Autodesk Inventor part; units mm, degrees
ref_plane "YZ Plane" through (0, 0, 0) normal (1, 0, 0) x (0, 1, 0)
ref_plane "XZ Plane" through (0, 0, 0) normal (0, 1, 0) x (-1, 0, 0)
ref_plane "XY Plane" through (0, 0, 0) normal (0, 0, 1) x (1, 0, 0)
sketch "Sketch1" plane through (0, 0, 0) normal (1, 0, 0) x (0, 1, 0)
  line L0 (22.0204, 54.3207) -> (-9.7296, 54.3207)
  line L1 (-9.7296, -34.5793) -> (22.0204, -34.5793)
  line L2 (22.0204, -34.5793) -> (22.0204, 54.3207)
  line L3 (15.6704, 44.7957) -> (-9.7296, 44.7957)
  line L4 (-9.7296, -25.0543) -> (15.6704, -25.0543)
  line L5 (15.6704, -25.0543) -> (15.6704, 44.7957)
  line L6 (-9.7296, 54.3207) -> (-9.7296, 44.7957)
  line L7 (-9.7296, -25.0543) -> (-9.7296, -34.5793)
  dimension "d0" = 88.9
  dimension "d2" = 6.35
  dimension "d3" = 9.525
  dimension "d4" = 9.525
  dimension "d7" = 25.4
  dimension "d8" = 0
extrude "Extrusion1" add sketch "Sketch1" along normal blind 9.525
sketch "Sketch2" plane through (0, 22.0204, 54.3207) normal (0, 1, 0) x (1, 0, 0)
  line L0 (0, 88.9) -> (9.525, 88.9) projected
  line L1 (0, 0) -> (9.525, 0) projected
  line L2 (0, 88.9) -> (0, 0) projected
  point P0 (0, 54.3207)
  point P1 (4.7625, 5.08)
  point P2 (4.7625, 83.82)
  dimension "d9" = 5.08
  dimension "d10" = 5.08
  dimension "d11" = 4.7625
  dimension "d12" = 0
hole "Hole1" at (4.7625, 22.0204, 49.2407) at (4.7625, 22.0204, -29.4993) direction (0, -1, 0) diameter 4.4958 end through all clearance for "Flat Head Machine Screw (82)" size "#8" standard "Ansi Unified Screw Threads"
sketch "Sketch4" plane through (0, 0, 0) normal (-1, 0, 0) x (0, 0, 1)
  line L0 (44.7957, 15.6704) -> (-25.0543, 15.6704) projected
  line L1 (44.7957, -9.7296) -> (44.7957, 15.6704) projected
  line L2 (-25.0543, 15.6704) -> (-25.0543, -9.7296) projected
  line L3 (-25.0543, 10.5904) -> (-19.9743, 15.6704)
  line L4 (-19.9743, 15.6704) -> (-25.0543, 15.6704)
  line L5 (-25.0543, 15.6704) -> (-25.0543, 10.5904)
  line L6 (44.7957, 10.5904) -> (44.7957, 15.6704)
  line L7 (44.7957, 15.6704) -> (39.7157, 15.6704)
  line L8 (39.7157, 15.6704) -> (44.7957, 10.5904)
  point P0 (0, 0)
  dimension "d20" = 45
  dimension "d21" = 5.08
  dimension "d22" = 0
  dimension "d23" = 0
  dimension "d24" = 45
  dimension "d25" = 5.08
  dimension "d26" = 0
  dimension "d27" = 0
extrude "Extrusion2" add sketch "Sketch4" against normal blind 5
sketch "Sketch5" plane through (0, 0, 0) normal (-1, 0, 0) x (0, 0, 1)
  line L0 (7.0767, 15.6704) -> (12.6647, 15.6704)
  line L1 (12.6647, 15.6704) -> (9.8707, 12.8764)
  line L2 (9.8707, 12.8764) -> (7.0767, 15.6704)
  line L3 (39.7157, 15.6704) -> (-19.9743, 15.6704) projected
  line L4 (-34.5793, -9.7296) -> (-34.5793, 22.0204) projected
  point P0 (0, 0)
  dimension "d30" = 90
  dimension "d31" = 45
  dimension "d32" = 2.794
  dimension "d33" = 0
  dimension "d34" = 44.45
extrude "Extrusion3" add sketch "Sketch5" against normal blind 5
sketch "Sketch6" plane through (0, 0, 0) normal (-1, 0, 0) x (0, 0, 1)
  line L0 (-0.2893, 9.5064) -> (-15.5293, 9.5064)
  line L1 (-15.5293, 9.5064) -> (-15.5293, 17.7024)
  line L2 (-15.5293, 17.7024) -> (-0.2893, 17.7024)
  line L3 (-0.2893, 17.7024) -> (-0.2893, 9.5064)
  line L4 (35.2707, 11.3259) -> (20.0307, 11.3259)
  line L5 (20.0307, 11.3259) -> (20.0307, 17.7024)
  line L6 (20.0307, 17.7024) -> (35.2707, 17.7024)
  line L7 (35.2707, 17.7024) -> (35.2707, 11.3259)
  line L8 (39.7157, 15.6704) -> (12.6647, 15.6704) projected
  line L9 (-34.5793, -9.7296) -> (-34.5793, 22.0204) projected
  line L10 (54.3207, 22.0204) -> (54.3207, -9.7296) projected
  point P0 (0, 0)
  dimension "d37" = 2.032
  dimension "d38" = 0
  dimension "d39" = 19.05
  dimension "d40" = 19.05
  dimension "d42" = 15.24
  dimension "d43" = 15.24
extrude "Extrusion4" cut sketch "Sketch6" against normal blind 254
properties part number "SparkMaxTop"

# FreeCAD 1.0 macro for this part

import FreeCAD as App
import Part
import Sketcher
Q = App.Units.Quantity

doc = App.newDocument("Part")
body = doc.addObject("PartDesign::Body", "Body")

sketch1 = doc.addObject("Sketcher::SketchObject", "Sketch")
body.addObject(sketch1)
sketch1.AttachmentSupport = (doc.YZ_Plane, [""])
sketch1.MapMode = "FlatFace"
sketch1.addGeometry(Part.LineSegment(App.Vector(22, -35, 0), App.Vector(22, 54, 0)), False)
sketch1.addGeometry(Part.LineSegment(App.Vector(22, 54, 0), App.Vector(-10, 54, 0)), False)
sketch1.addGeometry(Part.LineSegment(App.Vector(-10, 54, 0), App.Vector(-10, 45, 0)), False)
sketch1.addGeometry(Part.LineSegment(App.Vector(-10, 45, 0), App.Vector(16, 45, 0)), False)
sketch1.addGeometry(Part.LineSegment(App.Vector(16, 45, 0), App.Vector(16, -25, 0)), False)
sketch1.addGeometry(Part.LineSegment(App.Vector(16, -25, 0), App.Vector(-10, -25, 0)), False)
sketch1.addGeometry(Part.LineSegment(App.Vector(-10, -25, 0), App.Vector(-10, -35, 0)), False)
sketch1.addGeometry(Part.LineSegment(App.Vector(-10, -35, 0), App.Vector(22, -35, 0)), False)
sketch1.addConstraint(Sketcher.Constraint("Coincident", 0, 2, 1, 1))
sketch1.addConstraint(Sketcher.Constraint("Coincident", 1, 2, 2, 1))
sketch1.addConstraint(Sketcher.Constraint("Coincident", 2, 2, 3, 1))
sketch1.addConstraint(Sketcher.Constraint("Coincident", 3, 2, 4, 1))
sketch1.addConstraint(Sketcher.Constraint("Coincident", 4, 2, 5, 1))
sketch1.addConstraint(Sketcher.Constraint("Coincident", 5, 2, 6, 1))
sketch1.addConstraint(Sketcher.Constraint("Coincident", 6, 2, 7, 1))
sketch1.addConstraint(Sketcher.Constraint("Coincident", 7, 2, 0, 1))
sketch1.addConstraint(Sketcher.Constraint("Vertical", 0))
sketch1.addConstraint(Sketcher.Constraint("Horizontal", 1))
sketch1.addConstraint(Sketcher.Constraint("Vertical", 2))
sketch1.addConstraint(Sketcher.Constraint("Horizontal", 3))
sketch1.addConstraint(Sketcher.Constraint("Vertical", 4))
sketch1.addConstraint(Sketcher.Constraint("Horizontal", 5))
sketch1.addConstraint(Sketcher.Constraint("Vertical", 6))
sketch1.addConstraint(Sketcher.Constraint("Horizontal", 7))
sketch1.addConstraint(Sketcher.Constraint("Vertical", 2, 2, 5, 2))
sketch1.addConstraint(Sketcher.Constraint("Equal", 2, 6))
sketch1.addConstraint(Sketcher.Constraint("DistanceX", 3, 1, 3, 2, Q("1 in")))
sketch1.addConstraint(Sketcher.Constraint("DistanceY", 0, 1, 0, 2, Q("3.5 in")))
sketch1.addConstraint(Sketcher.Constraint("DistanceY", 2, 2, 2, 1, Q("0.375 in")))
sketch1.addConstraint(Sketcher.Constraint("DistanceX", 3, 2, 0, 2, Q("0.25 in")))
sketch1.addConstraint(Sketcher.Constraint("DistanceY", -1, 1, 0, 2, Q("2.1386 in")))
sketch1.addConstraint(Sketcher.Constraint("DistanceX", -1, 1, 0, 2, 22.0204))
pad1 = doc.addObject("PartDesign::Pad", "Pad")
body.addObject(pad1)
pad1.Profile = sketch1
pad1.Length = Q("0.375 in")

sketch2 = doc.addObject("Sketcher::SketchObject", "Sketch001")
body.addObject(sketch2)
sketch2.AttachmentSupport = (doc.XZ_Plane, [""])
sketch2.MapMode = "FlatFace"
sketch2.AttachmentOffset = App.Placement(App.Vector(0, 0, -22.0204), App.Rotation())
sketch2.addGeometry(Part.Circle(App.Vector(4.8, 49.2, 0), App.Vector(0, 0, 1), 2.2), False)
sketch2.addGeometry(Part.Circle(App.Vector(4.8, -29.5, 0), App.Vector(0, 0, 1), 2.2), False)
sketch2.addConstraint(Sketcher.Constraint("Equal", 0, 1))
sketch2.addConstraint(Sketcher.Constraint("Vertical", 0, 3, 1, 3))
sketch2.addConstraint(Sketcher.Constraint("Diameter", 0, Q("0.177 in")))
sketch2.addConstraint(Sketcher.Constraint("DistanceY", 1, 3, 0, 3, Q("3.1 in")))
sketch2.addConstraint(Sketcher.Constraint("DistanceX", -1, 1, 0, 3, Q("0.1875 in")))
sketch2.addConstraint(Sketcher.Constraint("DistanceY", -1, 1, 0, 3, Q("1.9386 in")))
doc.recompute()
hole = doc.addObject("PartDesign::Hole", "Hole")
body.addObject(hole)
hole.Profile = sketch2
hole.ThreadType = "None"
hole.Diameter = Q("0.177 in")
hole.DepthType = "ThroughAll"
hole.Reversed = True

sketch3 = doc.addObject("Sketcher::SketchObject", "Sketch002")
body.addObject(sketch3)
sketch3.AttachmentSupport = (doc.YZ_Plane, [""])
sketch3.MapMode = "FlatFace"
sketch3.addGeometry(Part.LineSegment(App.Vector(11, 45, 0), App.Vector(16, 45, 0)), False)
sketch3.addGeometry(Part.LineSegment(App.Vector(16, 45, 0), App.Vector(16, 40, 0)), False)
sketch3.addGeometry(Part.LineSegment(App.Vector(16, 40, 0), App.Vector(11, 45, 0)), False)
sketch3.addGeometry(Part.LineSegment(App.Vector(11, -25, 0), App.Vector(16, -20, 0)), False)
sketch3.addGeometry(Part.LineSegment(App.Vector(16, -20, 0), App.Vector(16, -25, 0)), False)
sketch3.addGeometry(Part.LineSegment(App.Vector(16, -25, 0), App.Vector(11, -25, 0)), False)
sketch3.addConstraint(Sketcher.Constraint("Coincident", 0, 2, 1, 1))
sketch3.addConstraint(Sketcher.Constraint("Coincident", 1, 2, 2, 1))
sketch3.addConstraint(Sketcher.Constraint("Coincident", 2, 2, 0, 1))
sketch3.addConstraint(Sketcher.Constraint("Coincident", 3, 2, 4, 1))
sketch3.addConstraint(Sketcher.Constraint("Coincident", 4, 2, 5, 1))
sketch3.addConstraint(Sketcher.Constraint("Coincident", 5, 2, 3, 1))
sketch3.addConstraint(Sketcher.Constraint("Horizontal", 0))
sketch3.addConstraint(Sketcher.Constraint("Vertical", 1))
sketch3.addConstraint(Sketcher.Constraint("Vertical", 4))
sketch3.addConstraint(Sketcher.Constraint("Horizontal", 5))
sketch3.addConstraint(Sketcher.Constraint("Perpendicular", 2, 3))
sketch3.addConstraint(Sketcher.Constraint("Vertical", 1, 2, 3, 2))
sketch3.addConstraint(Sketcher.Constraint("Vertical", 2, 2, 5, 2))
sketch3.addConstraint(Sketcher.Constraint("Equal", 5, 1))
sketch3.addConstraint(Sketcher.Constraint("DistanceX", 0, 1, 0, 2, Q("0.2 in")))
sketch3.addConstraint(Sketcher.Constraint("DistanceY", 3, 2, 1, 2, Q("2.35 in")))
sketch3.addConstraint(Sketcher.Constraint("DistanceY", -1, 1, 0, 2, Q("1.7636 in")))
sketch3.addConstraint(Sketcher.Constraint("DistanceX", -1, 1, 0, 2, 15.6704))
pad2 = doc.addObject("PartDesign::Pad", "Pad001")
body.addObject(pad2)
pad2.Profile = sketch3
pad2.Length = 5

sketch4 = doc.addObject("Sketcher::SketchObject", "Sketch003")
body.addObject(sketch4)
sketch4.AttachmentSupport = (doc.YZ_Plane, [""])
sketch4.MapMode = "FlatFace"
sketch4.addGeometry(Part.LineSegment(App.Vector(15.7, 12.7, 0), App.Vector(15.7, 7.1, 0)), False)
sketch4.addGeometry(Part.LineSegment(App.Vector(15.7, 7.1, 0), App.Vector(12.9, 9.9, 0)), False)
sketch4.addGeometry(Part.LineSegment(App.Vector(12.9, 9.9, 0), App.Vector(15.7, 12.7, 0)), False)
sketch4.addConstraint(Sketcher.Constraint("Coincident", 0, 2, 1, 1))
sketch4.addConstraint(Sketcher.Constraint("Coincident", 1, 2, 2, 1))
sketch4.addConstraint(Sketcher.Constraint("Coincident", 2, 2, 0, 1))
sketch4.addConstraint(Sketcher.Constraint("Vertical", 0))
sketch4.addConstraint(Sketcher.Constraint("Perpendicular", 1, 2))
sketch4.addConstraint(Sketcher.Constraint("Equal", 1, 2))
sketch4.addConstraint(Sketcher.Constraint("DistanceX", 1, 2, 0, 2, Q("0.11 in")))
sketch4.addConstraint(Sketcher.Constraint("DistanceY", -1, 1, 0, 2, Q("0.2786 in")))
sketch4.addConstraint(Sketcher.Constraint("DistanceX", -1, 1, 0, 2, 15.6704))
pad3 = doc.addObject("PartDesign::Pad", "Pad002")
body.addObject(pad3)
pad3.Profile = sketch4
pad3.Length = 5

sketch5 = doc.addObject("Sketcher::SketchObject", "Sketch004")
body.addObject(sketch5)
sketch5.AttachmentSupport = (doc.YZ_Plane, [""])
sketch5.MapMode = "FlatFace"
sketch5.addGeometry(Part.LineSegment(App.Vector(10, -16, 0), App.Vector(10, 0, 0)), False)
sketch5.addGeometry(Part.LineSegment(App.Vector(10, 0, 0), App.Vector(18, 0, 0)), False)
sketch5.addGeometry(Part.LineSegment(App.Vector(18, 0, 0), App.Vector(18, -16, 0)), False)
sketch5.addGeometry(Part.LineSegment(App.Vector(18, -16, 0), App.Vector(10, -16, 0)), False)
sketch5.addGeometry(Part.LineSegment(App.Vector(11, 20, 0), App.Vector(11, 35, 0)), False)
sketch5.addGeometry(Part.LineSegment(App.Vector(11, 35, 0), App.Vector(18, 35, 0)), False)
sketch5.addGeometry(Part.LineSegment(App.Vector(18, 35, 0), App.Vector(18, 20, 0)), False)
sketch5.addGeometry(Part.LineSegment(App.Vector(18, 20, 0), App.Vector(11, 20, 0)), False)
sketch5.addConstraint(Sketcher.Constraint("Coincident", 0, 2, 1, 1))
sketch5.addConstraint(Sketcher.Constraint("Coincident", 1, 2, 2, 1))
sketch5.addConstraint(Sketcher.Constraint("Coincident", 2, 2, 3, 1))
sketch5.addConstraint(Sketcher.Constraint("Coincident", 3, 2, 0, 1))
sketch5.addConstraint(Sketcher.Constraint("Coincident", 4, 2, 5, 1))
sketch5.addConstraint(Sketcher.Constraint("Coincident", 5, 2, 6, 1))
sketch5.addConstraint(Sketcher.Constraint("Coincident", 6, 2, 7, 1))
sketch5.addConstraint(Sketcher.Constraint("Coincident", 7, 2, 4, 1))
sketch5.addConstraint(Sketcher.Constraint("Vertical", 0))
sketch5.addConstraint(Sketcher.Constraint("Horizontal", 1))
sketch5.addConstraint(Sketcher.Constraint("Vertical", 2))
sketch5.addConstraint(Sketcher.Constraint("Horizontal", 3))
sketch5.addConstraint(Sketcher.Constraint("Vertical", 4))
sketch5.addConstraint(Sketcher.Constraint("Horizontal", 5))
sketch5.addConstraint(Sketcher.Constraint("Vertical", 6))
sketch5.addConstraint(Sketcher.Constraint("Horizontal", 7))
sketch5.addConstraint(Sketcher.Constraint("Vertical", 2, 2, 5, 2))
sketch5.addConstraint(Sketcher.Constraint("Equal", 2, 4))
sketch5.addConstraint(Sketcher.Constraint("DistanceY", 0, 1, 0, 2, Q("0.6 in")))
sketch5.addConstraint(Sketcher.Constraint("DistanceY", 3, 2, 4, 2, Q("2 in")))
sketch5.addConstraint(Sketcher.Constraint("DistanceX", 1, 1, 1, 2, 8.196))
sketch5.addConstraint(Sketcher.Constraint("DistanceX", 5, 1, 5, 2, 6.3765))
sketch5.addConstraint(Sketcher.Constraint("DistanceY", 0, 2, -1, 1, Q("0.0114 in")))
sketch5.addConstraint(Sketcher.Constraint("DistanceX", -1, 1, 4, 2, Q("0.4459 in")))
pocket1 = doc.addObject("PartDesign::Pocket", "Pocket")
body.addObject(pocket1)
pocket1.Profile = sketch5
pocket1.Length = Q("10 in")
pocket1.Reversed = True

doc.recompute()
